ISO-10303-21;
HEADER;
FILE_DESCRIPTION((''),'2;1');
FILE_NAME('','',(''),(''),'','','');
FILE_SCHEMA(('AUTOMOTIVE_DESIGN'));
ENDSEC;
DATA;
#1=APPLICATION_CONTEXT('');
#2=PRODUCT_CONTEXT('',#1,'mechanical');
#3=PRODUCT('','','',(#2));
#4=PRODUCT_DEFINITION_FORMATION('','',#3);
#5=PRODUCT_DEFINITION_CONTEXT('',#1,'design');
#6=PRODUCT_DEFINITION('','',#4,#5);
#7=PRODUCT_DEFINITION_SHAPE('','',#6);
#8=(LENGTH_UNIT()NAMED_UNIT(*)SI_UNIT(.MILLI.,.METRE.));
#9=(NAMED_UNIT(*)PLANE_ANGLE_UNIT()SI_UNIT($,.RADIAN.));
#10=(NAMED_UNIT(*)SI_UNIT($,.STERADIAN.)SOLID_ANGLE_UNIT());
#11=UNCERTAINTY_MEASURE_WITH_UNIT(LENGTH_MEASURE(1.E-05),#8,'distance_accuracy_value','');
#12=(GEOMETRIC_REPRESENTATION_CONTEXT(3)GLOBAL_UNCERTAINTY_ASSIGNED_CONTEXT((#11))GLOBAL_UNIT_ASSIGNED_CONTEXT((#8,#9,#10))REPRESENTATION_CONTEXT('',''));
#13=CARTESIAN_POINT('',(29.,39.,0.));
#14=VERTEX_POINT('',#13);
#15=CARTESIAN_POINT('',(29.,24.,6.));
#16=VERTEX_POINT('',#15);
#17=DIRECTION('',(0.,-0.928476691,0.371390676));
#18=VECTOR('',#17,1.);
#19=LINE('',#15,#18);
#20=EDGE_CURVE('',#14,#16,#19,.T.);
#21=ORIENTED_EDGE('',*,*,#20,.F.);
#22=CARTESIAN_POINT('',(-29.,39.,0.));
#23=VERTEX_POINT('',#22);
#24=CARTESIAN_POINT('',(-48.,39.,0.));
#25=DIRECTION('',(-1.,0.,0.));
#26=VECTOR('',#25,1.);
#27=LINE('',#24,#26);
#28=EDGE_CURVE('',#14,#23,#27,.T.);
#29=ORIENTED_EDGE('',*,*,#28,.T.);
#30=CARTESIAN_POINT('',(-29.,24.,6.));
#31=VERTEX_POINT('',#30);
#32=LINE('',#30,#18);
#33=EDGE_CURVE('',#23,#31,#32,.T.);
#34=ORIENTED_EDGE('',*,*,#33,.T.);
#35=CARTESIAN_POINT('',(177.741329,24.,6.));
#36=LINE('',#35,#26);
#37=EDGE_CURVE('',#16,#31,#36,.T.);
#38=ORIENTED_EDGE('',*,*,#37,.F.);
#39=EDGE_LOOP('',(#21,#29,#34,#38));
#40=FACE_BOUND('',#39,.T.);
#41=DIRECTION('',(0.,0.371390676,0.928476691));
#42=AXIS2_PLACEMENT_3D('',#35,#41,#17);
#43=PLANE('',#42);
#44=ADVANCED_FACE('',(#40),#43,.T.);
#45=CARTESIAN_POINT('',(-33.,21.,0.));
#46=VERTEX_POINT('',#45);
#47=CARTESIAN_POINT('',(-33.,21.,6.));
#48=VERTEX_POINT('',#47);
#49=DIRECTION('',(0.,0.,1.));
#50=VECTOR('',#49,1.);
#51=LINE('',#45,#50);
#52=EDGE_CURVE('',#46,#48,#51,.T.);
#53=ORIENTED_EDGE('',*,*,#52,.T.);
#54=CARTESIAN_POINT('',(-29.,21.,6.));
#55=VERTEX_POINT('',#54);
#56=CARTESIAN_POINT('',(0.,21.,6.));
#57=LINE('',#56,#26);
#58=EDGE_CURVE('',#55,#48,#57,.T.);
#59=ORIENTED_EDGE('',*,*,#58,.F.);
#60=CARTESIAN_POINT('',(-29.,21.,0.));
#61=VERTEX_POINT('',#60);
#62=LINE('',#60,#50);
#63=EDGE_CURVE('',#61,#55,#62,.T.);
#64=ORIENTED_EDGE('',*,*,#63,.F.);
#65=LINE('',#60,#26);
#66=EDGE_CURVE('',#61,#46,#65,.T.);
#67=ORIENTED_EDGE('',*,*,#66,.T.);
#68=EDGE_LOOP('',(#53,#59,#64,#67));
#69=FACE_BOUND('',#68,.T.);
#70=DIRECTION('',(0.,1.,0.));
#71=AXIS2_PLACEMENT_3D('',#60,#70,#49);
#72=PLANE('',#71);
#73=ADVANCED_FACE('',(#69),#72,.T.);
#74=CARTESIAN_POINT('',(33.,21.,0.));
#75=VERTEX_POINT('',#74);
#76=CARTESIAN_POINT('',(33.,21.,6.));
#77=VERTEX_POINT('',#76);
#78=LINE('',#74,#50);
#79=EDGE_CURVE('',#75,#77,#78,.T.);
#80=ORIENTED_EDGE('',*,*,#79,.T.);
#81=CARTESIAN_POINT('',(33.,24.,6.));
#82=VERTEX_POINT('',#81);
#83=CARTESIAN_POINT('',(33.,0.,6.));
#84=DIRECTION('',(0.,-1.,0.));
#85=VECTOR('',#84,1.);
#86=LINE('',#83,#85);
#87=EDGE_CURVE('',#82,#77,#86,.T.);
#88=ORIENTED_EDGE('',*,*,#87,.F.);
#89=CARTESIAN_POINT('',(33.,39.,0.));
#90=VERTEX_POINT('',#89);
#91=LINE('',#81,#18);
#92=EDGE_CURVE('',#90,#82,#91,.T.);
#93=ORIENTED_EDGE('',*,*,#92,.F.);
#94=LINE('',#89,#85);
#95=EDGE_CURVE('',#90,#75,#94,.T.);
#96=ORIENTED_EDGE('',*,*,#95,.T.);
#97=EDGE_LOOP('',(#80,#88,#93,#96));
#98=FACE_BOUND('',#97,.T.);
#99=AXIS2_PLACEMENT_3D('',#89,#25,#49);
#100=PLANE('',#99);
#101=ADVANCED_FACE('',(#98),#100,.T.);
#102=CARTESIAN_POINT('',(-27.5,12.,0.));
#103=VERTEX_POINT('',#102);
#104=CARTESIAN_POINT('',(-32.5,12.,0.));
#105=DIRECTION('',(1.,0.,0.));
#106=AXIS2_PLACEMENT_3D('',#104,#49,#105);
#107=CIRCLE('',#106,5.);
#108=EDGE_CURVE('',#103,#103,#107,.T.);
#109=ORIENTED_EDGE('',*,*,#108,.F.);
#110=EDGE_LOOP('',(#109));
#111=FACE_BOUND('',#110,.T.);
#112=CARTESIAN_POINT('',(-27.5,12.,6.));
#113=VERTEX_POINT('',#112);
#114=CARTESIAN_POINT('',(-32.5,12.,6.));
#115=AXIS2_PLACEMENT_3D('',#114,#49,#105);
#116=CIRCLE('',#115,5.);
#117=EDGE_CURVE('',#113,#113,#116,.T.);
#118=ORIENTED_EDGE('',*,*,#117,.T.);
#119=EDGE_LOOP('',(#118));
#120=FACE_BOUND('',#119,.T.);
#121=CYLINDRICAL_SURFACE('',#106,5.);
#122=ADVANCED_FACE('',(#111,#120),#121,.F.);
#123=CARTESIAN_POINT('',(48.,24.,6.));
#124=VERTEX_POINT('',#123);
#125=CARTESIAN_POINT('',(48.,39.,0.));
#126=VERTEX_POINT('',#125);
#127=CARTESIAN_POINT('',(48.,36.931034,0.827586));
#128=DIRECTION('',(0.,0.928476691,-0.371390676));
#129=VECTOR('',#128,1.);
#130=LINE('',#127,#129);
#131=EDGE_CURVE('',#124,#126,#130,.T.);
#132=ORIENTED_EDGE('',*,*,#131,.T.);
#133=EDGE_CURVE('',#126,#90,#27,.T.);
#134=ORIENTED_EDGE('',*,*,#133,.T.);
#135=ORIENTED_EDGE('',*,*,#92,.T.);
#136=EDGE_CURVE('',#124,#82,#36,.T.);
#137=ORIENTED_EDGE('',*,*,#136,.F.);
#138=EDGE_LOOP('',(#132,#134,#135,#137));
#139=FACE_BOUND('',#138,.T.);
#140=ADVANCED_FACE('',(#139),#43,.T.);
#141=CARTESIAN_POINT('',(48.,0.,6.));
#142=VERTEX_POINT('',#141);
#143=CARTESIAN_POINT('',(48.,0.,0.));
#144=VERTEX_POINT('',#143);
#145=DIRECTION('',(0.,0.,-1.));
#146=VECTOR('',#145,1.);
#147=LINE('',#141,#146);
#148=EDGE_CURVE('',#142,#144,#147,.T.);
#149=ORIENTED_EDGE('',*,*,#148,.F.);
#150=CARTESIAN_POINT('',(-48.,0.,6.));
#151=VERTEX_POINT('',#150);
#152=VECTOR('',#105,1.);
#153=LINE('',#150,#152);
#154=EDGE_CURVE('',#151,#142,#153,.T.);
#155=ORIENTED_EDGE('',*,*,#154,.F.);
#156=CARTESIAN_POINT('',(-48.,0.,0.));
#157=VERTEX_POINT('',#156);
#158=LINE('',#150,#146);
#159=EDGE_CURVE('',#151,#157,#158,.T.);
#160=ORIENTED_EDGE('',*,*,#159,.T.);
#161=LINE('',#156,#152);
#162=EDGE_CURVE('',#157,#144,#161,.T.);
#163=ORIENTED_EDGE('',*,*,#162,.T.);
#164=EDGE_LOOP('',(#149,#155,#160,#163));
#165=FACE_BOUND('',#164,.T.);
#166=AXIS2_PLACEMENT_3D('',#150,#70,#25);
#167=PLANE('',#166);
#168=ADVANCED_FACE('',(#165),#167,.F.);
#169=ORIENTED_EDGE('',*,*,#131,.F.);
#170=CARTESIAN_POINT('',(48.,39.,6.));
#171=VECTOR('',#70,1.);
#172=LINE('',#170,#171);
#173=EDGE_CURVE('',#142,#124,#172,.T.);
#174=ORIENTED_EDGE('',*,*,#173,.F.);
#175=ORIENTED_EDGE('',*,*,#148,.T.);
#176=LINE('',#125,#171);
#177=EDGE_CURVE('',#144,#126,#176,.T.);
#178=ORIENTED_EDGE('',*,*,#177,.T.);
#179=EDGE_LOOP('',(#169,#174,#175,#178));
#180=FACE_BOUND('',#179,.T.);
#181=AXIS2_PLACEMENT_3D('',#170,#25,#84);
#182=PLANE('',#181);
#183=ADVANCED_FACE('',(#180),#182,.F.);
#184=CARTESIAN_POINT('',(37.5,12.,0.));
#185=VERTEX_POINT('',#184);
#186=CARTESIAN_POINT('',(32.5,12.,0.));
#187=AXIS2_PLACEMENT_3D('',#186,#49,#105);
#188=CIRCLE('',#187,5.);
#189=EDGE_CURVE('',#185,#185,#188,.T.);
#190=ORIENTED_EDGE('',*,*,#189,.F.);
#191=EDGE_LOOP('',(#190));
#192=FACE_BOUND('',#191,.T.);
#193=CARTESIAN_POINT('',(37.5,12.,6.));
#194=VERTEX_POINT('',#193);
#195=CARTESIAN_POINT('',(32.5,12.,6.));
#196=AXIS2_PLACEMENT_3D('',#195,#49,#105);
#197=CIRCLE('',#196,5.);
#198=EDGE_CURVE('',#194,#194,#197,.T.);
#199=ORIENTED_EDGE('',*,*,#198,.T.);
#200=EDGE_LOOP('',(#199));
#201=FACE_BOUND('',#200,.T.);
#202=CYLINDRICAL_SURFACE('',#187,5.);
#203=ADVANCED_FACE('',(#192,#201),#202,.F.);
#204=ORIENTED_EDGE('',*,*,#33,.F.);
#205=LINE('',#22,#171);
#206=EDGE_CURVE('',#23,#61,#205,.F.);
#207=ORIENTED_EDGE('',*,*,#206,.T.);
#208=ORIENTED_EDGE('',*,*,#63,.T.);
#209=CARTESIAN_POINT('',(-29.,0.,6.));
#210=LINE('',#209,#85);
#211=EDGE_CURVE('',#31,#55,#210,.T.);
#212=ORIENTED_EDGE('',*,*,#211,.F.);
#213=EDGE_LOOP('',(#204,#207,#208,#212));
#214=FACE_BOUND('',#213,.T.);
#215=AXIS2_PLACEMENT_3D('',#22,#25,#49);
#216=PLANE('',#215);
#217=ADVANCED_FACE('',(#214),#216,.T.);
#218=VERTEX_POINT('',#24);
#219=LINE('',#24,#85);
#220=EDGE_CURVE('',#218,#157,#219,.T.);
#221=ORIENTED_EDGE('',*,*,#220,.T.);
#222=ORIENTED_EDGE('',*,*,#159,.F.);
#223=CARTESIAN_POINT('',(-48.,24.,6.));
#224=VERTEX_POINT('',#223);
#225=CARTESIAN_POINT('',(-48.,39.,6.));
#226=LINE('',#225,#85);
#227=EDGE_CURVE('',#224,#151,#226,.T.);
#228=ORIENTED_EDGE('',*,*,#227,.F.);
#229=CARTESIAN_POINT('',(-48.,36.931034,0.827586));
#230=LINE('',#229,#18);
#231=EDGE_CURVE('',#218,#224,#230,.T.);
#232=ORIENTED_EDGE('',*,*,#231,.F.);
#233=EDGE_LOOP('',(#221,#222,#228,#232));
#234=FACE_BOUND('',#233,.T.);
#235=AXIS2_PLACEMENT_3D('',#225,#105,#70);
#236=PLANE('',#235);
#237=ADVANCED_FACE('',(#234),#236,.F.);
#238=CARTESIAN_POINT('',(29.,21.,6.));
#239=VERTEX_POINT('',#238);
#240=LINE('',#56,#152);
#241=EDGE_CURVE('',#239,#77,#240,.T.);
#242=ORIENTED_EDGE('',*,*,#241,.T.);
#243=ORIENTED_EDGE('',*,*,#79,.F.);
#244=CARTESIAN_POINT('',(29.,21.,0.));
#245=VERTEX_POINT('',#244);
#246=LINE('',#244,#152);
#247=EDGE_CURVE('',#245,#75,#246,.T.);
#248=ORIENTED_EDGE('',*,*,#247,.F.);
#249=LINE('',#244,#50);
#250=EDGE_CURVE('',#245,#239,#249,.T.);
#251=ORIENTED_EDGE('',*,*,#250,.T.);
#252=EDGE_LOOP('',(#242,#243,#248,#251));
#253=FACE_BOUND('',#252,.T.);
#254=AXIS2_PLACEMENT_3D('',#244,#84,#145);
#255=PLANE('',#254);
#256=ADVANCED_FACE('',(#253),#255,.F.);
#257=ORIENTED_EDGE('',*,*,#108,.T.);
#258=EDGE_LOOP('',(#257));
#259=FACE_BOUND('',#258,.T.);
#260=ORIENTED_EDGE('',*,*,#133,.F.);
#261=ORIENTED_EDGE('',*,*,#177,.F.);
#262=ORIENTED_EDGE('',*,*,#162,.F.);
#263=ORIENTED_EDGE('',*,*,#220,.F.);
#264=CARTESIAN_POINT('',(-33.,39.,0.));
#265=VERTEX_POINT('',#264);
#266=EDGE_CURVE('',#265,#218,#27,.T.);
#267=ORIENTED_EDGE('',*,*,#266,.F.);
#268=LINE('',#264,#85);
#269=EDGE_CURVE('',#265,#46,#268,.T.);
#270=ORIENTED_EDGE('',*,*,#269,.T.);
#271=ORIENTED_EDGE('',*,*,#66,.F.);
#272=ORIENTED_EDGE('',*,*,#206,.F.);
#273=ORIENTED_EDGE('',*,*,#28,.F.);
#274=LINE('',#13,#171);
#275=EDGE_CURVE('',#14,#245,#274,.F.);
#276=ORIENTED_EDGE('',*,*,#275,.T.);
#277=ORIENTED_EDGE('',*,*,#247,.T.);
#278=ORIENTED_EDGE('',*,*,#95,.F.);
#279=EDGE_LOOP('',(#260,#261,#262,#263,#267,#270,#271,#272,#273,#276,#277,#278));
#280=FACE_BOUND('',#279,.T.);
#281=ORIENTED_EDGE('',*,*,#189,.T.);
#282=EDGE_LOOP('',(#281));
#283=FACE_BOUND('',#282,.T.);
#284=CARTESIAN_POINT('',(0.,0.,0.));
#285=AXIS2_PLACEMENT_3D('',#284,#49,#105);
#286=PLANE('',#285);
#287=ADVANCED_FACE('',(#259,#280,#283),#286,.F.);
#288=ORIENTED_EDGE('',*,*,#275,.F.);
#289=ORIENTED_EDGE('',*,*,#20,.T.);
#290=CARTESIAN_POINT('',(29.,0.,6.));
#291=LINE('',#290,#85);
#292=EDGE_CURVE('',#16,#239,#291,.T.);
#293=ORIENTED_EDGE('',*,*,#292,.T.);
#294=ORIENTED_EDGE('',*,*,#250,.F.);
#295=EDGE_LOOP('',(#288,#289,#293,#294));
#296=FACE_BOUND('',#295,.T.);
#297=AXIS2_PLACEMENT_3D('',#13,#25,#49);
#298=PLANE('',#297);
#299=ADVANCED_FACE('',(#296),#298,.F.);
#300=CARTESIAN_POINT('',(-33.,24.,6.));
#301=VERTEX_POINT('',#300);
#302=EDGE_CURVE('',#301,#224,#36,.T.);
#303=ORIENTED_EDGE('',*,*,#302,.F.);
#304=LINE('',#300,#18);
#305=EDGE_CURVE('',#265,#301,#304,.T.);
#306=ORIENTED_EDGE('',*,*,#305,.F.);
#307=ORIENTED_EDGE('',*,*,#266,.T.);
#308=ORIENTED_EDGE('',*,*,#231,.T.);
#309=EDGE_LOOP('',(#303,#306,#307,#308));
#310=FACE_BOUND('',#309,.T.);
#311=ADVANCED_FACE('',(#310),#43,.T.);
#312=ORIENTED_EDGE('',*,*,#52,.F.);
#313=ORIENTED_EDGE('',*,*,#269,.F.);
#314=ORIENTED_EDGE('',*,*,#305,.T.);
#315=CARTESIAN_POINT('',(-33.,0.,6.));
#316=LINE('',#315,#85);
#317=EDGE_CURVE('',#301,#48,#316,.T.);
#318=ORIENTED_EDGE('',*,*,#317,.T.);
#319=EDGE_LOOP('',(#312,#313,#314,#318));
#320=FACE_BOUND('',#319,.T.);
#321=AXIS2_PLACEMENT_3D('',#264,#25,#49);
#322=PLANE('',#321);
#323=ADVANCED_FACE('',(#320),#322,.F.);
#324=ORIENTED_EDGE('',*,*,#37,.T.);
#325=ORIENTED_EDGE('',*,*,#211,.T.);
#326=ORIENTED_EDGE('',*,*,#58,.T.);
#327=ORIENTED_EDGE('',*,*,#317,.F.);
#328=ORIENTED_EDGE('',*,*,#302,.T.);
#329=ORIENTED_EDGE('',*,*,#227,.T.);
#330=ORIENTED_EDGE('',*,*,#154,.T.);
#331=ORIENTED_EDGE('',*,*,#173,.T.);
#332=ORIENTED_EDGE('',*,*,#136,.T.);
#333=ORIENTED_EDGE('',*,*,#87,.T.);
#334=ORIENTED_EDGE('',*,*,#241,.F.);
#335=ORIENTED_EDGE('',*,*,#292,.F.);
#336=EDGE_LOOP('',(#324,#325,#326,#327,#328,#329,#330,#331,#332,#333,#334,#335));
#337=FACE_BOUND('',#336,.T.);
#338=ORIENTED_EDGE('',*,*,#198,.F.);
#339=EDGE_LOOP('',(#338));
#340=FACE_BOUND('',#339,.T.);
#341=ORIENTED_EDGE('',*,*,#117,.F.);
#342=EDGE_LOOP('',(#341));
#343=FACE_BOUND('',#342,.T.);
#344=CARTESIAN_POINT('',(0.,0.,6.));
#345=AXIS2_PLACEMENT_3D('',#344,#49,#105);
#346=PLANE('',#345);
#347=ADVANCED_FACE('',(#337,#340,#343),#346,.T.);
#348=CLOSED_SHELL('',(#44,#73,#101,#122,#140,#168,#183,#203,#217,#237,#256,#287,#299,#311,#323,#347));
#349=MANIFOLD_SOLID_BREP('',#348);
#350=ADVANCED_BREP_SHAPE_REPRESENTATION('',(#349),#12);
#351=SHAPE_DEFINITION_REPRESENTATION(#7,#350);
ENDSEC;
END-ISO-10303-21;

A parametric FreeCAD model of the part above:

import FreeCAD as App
import Part
import Sketcher
from FreeCAD import Vector

doc = App.newDocument("Part")
params = doc.addObject("Spreadsheet::Sheet", "Params")
for row, (alias, value) in enumerate([
    ("sketch1_width", "96 mm"),
    ("sketch1_height", "39 mm"),
    ("pad1_length", "6 mm"),
    ("sketch3_width", "4 mm"),
    ("sketch3_height", "18 mm"),
    ("pocket2_length", "126.273891 mm"),
    ("sketch4_diameter", "10 mm"),
], start=1):
    params.set(f"A{row}", alias)
    params.set(f"B{row}", "=" + value)
    params.setAlias(f"B{row}", alias)

body = doc.addObject("PartDesign::Body", "Body")

# Sketch on XY plane
sketch1 = body.newObject("Sketcher::SketchObject", "Sketch")
sketch1.AttachmentSupport = (doc.getObject("XY_Plane"), [""])
sketch1.MapMode = "FlatFace"
sketch1.addGeometry([
    Part.LineSegment(Vector(-48, 39, 0), Vector(-48, 0, 0)),
    Part.LineSegment(Vector(-48, 0, 0), Vector(48, 0, 0)),
    Part.LineSegment(Vector(48, 0, 0), Vector(48, 39, 0)),
    Part.LineSegment(Vector(48, 39, 0), Vector(-48, 39, 0)),
], False)
sketch1.addConstraint([
    Sketcher.Constraint("Coincident", 0, 2, 1, 1),
    Sketcher.Constraint("Coincident", 1, 2, 2, 1),
    Sketcher.Constraint("Coincident", 2, 2, 3, 1),
    Sketcher.Constraint("Coincident", 3, 2, 0, 1),
    Sketcher.Constraint("Vertical", 0),
    Sketcher.Constraint("Horizontal", 1),
    Sketcher.Constraint("Vertical", 2),
    Sketcher.Constraint("Horizontal", 3),
    Sketcher.Constraint("Symmetric", 0, 2, 1, 2, -1, 1),
    Sketcher.Constraint("DistanceX", 1, 1, 1, 2, 96.0),
    Sketcher.Constraint("DistanceY", 0, 2, 0, 1, 39.0),
])
sketch1.setExpression("Constraints[9]", "Params.sketch1_width")
sketch1.setExpression("Constraints[10]", "Params.sketch1_height")
pad1 = body.newObject("PartDesign::Pad", "Pad")
pad1.Profile = sketch1
pad1.setExpression("Length", "Params.pad1_length")

# Sketch on YZ plane
sketch2 = body.newObject("Sketcher::SketchObject", "Sketch001")
sketch2.AttachmentSupport = (doc.getObject("YZ_Plane"), [""])
sketch2.MapMode = "FlatFace"
sketch2.AttachmentOffset = App.Placement(Vector(0, 0, 48), App.Rotation())
sketch2.addGeometry([
    Part.LineSegment(Vector(-59, 39, 0), Vector(24, 6, 0)),  # 0
    Part.LineSegment(Vector(24, 6, 0), Vector(39, 0, 0)),  # 1
    Part.LineSegment(Vector(39, 0, 0), Vector(122, -33, 0)),  # 2
    Part.LineSegment(Vector(122, -33, 0), Vector(188, 132, 0)),  # 3
    Part.LineSegment(Vector(188, 132, 0), Vector(7, 204, 0)),  # 4
    Part.LineSegment(Vector(7, 204, 0), Vector(-59, 39, 0)),  # 5
], False)
sketch2.addConstraint([
    Sketcher.Constraint("Coincident", 0, 2, 1, 1),
    Sketcher.Constraint("Coincident", 1, 2, 2, 1),
    Sketcher.Constraint("Coincident", 2, 2, 3, 1),
    Sketcher.Constraint("Coincident", 3, 2, 4, 1),
    Sketcher.Constraint("Coincident", 4, 2, 5, 1),
    Sketcher.Constraint("Coincident", 5, 2, 0, 1),
    Sketcher.Constraint("PointOnObject", 1, 2, -1),
    Sketcher.Constraint("Parallel", 0, 1),
    Sketcher.Constraint("Parallel", 1, 2),
    Sketcher.Constraint("Perpendicular", 2, 3),
    Sketcher.Constraint("Perpendicular", 3, 4),
    Sketcher.Constraint("Perpendicular", 4, 5),
    Sketcher.Constraint("Equal", 0, 2),
    Sketcher.Constraint("DistanceX", -1, 1, 0, 2, 24.0),
    Sketcher.Constraint("DistanceY", -1, 1, 0, 2, 6.0),
    Sketcher.Constraint("DistanceX", -1, 1, 1, 2, 39.0),
    Sketcher.Constraint("DistanceX", -1, 1, 4, 2, 7.488402),
    Sketcher.Constraint("Distance", 0, 88.917679),
])
pocket1 = body.newObject("PartDesign::Pocket", "Pocket")
pocket1.Profile = sketch2
pocket1.Type = "ThroughAll"
pocket1.Midplane = True

# Sketch on XY plane
sketch3 = body.newObject("Sketcher::SketchObject", "Sketch002")
sketch3.AttachmentSupport = (doc.getObject("XY_Plane"), [""])
sketch3.MapMode = "FlatFace"
sketch3.AttachmentOffset = App.Placement(Vector(0, 0, 6), App.Rotation())
sketch3.addGeometry([
    Part.LineSegment(Vector(-33, 39, 0), Vector(-33, 21, 0)),
    Part.LineSegment(Vector(-33, 21, 0), Vector(-29, 21, 0)),
    Part.LineSegment(Vector(-29, 21, 0), Vector(-29, 39, 0)),
    Part.LineSegment(Vector(-29, 39, 0), Vector(-33, 39, 0)),
], False)
sketch3.addConstraint([
    Sketcher.Constraint("Coincident", 0, 2, 1, 1),
    Sketcher.Constraint("Coincident", 1, 2, 2, 1),
    Sketcher.Constraint("Coincident", 2, 2, 3, 1),
    Sketcher.Constraint("Coincident", 3, 2, 0, 1),
    Sketcher.Constraint("Vertical", 0),
    Sketcher.Constraint("Horizontal", 1),
    Sketcher.Constraint("Vertical", 2),
    Sketcher.Constraint("Horizontal", 3),
    Sketcher.Constraint("DistanceX", 1, 1, 1, 2, 4.0),
    Sketcher.Constraint("DistanceY", 0, 2, 0, 1, 18.0),
    Sketcher.Constraint("DistanceX", 0, 2, -1, 1, 33.0),
    Sketcher.Constraint("DistanceY", -1, 1, 0, 2, 21.0),
])
sketch3.setExpression("Constraints[8]", "Params.sketch3_width")
sketch3.setExpression("Constraints[9]", "Params.sketch3_height")
pocket2 = body.newObject("PartDesign::Pocket", "Pocket001")
pocket2.Profile = sketch3
pocket2.setExpression("Length", "Params.pocket2_length")
pocket2.Midplane = True
doc.recompute()

mirrored = body.newObject("PartDesign::Mirrored", "Mirrored")
mirrored.Originals = [pocket2]
mirrored.MirrorPlane = (doc.getObject("YZ_Plane"), [""])
body.Tip = mirrored

# Sketch on XY plane
sketch4 = body.newObject("Sketcher::SketchObject", "Sketch003")
sketch4.AttachmentSupport = (doc.getObject("XY_Plane"), [""])
sketch4.MapMode = "FlatFace"
sketch4.AttachmentOffset = App.Placement(Vector(0, 0, 6), App.Rotation())
sketch4.addGeometry([
    Part.Circle(Vector(32, 12, 0), Vector(0, 0, 1), 5),
    Part.Circle(Vector(-32, 12, 0), Vector(0, 0, 1), 5),
], False)
sketch4.addConstraint([
    Sketcher.Constraint("Equal", 0, 1),
    Sketcher.Constraint("Symmetric", 0, 3, 1, 3, -2),
    Sketcher.Constraint("Diameter", 0, 10.0),
    Sketcher.Constraint("DistanceY", -1, 1, 0, 3, 12.0),
    Sketcher.Constraint("DistanceX", 1, 3, 0, 3, 65.0),
])
sketch4.setExpression("Constraints[2]", "Params.sketch4_diameter")
pocket3 = body.newObject("PartDesign::Pocket", "Pocket002")
pocket3.Profile = sketch4
pocket3.Type = "ThroughAll"

doc.recompute()
